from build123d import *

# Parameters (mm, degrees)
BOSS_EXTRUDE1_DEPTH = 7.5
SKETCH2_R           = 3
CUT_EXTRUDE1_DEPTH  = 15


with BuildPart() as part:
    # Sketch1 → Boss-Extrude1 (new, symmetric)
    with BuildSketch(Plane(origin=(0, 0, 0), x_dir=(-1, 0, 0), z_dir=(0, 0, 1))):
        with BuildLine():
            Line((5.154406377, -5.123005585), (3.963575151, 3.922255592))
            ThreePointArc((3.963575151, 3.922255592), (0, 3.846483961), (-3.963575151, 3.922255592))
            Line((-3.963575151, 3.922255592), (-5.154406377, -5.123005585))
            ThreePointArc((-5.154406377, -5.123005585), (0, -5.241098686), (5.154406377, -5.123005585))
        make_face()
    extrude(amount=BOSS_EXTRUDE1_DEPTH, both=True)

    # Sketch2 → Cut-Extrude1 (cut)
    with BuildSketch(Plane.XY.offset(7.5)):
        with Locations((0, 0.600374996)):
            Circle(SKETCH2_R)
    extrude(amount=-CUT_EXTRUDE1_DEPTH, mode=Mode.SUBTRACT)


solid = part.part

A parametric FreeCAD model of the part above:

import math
import FreeCAD as App
import Part
import Sketcher

V = App.Vector
Q = App.Units.Quantity

doc = App.newDocument("Part")
body = doc.addObject("PartDesign::Body", "Body")

sketch1 = body.newObject("Sketcher::SketchObject", "Sketch")
sketch1.AttachmentSupport = (doc.getObject("XY_Plane"), [""])
sketch1.MapMode = "FlatFace"
sketch1.addGeometry(Part.LineSegment(V(-5, 5, 0), V(-4, -4, 0)), False)
sketch1.addGeometry(Part.ArcOfCircle(Part.Circle(V(0, -108, 0), V(0, 0, 1), 104), math.radians(87.81), math.radians(92.19)), False)
sketch1.addGeometry(Part.LineSegment(V(4, -4, 0), V(5, 5, 0)), False)
sketch1.addGeometry(Part.ArcOfCircle(Part.Circle(V(0, -107, 0), V(0, 0, 1), 113), math.radians(87.38), math.radians(92.62)), False)
sketch1.addConstraint(Sketcher.Constraint("Coincident", 0, 2, 1, 2))
sketch1.addConstraint(Sketcher.Constraint("Coincident", 1, 1, 2, 1))
sketch1.addConstraint(Sketcher.Constraint("Coincident", 2, 2, 3, 1))
sketch1.addConstraint(Sketcher.Constraint("Coincident", 3, 2, 0, 1))
sketch1.addConstraint(Sketcher.Constraint("Symmetric", 0, 2, 1, 1, -2))
sketch1.addConstraint(Sketcher.Constraint("Symmetric", 2, 2, 3, 2, -2))
sketch1.addConstraint(Sketcher.Constraint("Angle", 0, Q("-82.5 deg")))
sketch1.addConstraint(Sketcher.Constraint("Radius", 1, 103.704177))
sketch1.addConstraint(Sketcher.Constraint("Radius", 3, 112.546164))
sketch1.addConstraint(Sketcher.Constraint("DistanceY", 1, 3, -1, 1, 107.550661))
sketch1.addConstraint(Sketcher.Constraint("DistanceY", 3, 3, 0, 2, 103.38281))
sketch1.addConstraint(Sketcher.Constraint("DistanceX", 0, 2, 1, 1, 7.92715))
pad1 = body.newObject("PartDesign::Pad", "Pad")
pad1.Profile = sketch1
pad1.Length = 15
pad1.Midplane = True

sketch2 = body.newObject("Sketcher::SketchObject", "Sketch001")
sketch2.AttachmentSupport = (doc.getObject("XY_Plane"), [""])
sketch2.MapMode = "FlatFace"
sketch2.AttachmentOffset = App.Placement(V(0, 0, 7.5), App.Rotation())
sketch2.addGeometry(Part.Circle(V(0, 0.6, 0), V(0, 0, 1), 3), False)
sketch2.addConstraint(Sketcher.Constraint("PointOnObject", 0, 3, -2))
sketch2.addConstraint(Sketcher.Constraint("Diameter", 0, 6.0))
sketch2.addConstraint(Sketcher.Constraint("DistanceY", -1, 1, 0, 3, 0.600375))
pocket1 = body.newObject("PartDesign::Pocket", "Pocket")
pocket1.Profile = sketch2
pocket1.Length = 15

doc.recompute()
